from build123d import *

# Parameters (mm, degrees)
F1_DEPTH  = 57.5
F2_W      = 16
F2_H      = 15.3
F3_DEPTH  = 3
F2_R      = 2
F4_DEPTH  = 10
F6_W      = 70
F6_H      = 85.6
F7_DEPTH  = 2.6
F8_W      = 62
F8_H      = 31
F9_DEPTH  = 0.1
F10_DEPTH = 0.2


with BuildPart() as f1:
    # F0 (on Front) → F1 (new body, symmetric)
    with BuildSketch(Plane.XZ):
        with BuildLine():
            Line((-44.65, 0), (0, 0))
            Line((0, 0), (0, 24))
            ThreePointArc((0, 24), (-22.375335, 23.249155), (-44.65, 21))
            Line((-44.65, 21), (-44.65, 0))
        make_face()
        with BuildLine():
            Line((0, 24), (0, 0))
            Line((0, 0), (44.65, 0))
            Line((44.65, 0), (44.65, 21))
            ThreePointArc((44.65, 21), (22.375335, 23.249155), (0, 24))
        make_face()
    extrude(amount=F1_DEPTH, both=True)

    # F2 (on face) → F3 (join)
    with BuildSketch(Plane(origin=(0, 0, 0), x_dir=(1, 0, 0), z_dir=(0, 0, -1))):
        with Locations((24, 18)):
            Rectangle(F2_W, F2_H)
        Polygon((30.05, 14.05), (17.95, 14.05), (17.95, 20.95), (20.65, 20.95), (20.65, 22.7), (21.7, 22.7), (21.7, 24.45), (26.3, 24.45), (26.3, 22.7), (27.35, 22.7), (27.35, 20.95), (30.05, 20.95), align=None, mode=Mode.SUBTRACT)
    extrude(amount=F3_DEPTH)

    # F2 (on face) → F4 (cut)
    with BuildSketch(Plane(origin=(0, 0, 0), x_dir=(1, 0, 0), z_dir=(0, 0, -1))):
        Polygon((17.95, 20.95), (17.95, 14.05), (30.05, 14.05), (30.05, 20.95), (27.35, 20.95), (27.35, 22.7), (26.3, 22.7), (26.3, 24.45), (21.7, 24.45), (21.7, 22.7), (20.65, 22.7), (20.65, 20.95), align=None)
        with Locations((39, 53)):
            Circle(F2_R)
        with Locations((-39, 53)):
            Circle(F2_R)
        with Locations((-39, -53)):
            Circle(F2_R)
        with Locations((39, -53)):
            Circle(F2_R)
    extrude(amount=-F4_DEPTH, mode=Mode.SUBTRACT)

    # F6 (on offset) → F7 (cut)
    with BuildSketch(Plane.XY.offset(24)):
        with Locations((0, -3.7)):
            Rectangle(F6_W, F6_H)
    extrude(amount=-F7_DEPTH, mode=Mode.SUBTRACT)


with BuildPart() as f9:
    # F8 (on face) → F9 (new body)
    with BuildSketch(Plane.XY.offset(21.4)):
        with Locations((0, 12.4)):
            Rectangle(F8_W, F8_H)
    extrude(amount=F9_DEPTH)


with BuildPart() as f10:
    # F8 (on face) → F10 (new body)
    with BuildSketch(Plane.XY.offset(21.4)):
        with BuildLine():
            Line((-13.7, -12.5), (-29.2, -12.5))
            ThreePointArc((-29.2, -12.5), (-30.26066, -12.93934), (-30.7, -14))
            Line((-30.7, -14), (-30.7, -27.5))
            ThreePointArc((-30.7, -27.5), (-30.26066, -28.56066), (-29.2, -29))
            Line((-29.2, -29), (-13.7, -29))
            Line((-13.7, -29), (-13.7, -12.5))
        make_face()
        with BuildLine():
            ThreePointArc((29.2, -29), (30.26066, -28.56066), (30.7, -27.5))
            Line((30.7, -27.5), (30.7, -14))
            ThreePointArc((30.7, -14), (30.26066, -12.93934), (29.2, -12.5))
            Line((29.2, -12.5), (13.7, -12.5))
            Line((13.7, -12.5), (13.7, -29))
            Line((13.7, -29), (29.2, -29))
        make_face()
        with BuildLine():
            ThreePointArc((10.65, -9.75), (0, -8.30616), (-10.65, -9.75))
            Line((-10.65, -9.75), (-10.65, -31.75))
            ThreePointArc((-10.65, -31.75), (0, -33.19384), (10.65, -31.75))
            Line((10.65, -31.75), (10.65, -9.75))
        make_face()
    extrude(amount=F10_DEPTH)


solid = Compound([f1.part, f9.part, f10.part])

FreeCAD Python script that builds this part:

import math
import FreeCAD as App
import Part
import Sketcher


def add_polygon(sketch, points):
    """Adds a closed chain of lines whose ends are joined by coincident constraints."""
    first, n = sketch.GeometryCount, len(points)
    for a, b in zip(points, points[1:] + points[:1]):
        sketch.addGeometry(Part.LineSegment(App.Vector(*a, 0), App.Vector(*b, 0)), False)
    for i in range(n):
        sketch.addConstraint(Sketcher.Constraint("Coincident", first + i, 2, first + (i + 1) % n, 1))

doc = App.newDocument("Part")
body = doc.addObject("PartDesign::Body", "Body")

# Sketch on XZ plane
sketch1 = body.newObject("Sketcher::SketchObject", "Sketch")
sketch1.AttachmentSupport = (doc.getObject("XZ_Plane"), [""])
sketch1.MapMode = "FlatFace"
sketch1.addGeometry([
    Part.LineSegment(App.Vector(-44.65, 0, 0), App.Vector(44.65, 0, 0)),  # 0
    Part.LineSegment(App.Vector(44.65, 0, 0), App.Vector(44.65, 21, 0)),  # 1
    Part.ArcOfCircle(Part.Circle(App.Vector(-0.000014, -309.770624, 0), App.Vector(0, 0, 1), 333.770624), math.radians(82.312236), math.radians(89.999998)),  # 2
    Part.ArcOfCircle(Part.Circle(App.Vector(0.000014, -309.770624, 0), App.Vector(0, 0, 1), 333.770624), math.radians(90.000002), math.radians(97.687764)),  # 3
    Part.LineSegment(App.Vector(-44.65, 21, 0), App.Vector(-44.65, 0, 0)),  # 4
], False)
sketch1.addConstraint([
    Sketcher.Constraint("Coincident", 0, 2, 1, 1),
    Sketcher.Constraint("Coincident", 1, 2, 2, 1),
    Sketcher.Constraint("Coincident", 2, 2, 3, 1),
    Sketcher.Constraint("Coincident", 3, 2, 4, 1),
    Sketcher.Constraint("Coincident", 4, 2, 0, 1),
    Sketcher.Constraint("Horizontal", 0),
    Sketcher.Constraint("Vertical", 1),
    Sketcher.Constraint("Vertical", 4),
    Sketcher.Constraint("PointOnObject", 0, 2, -1),
    Sketcher.Constraint("PointOnObject", 2, 2, -2),
    Sketcher.Constraint("DistanceY", 1, 1, 1, 2, 21.0),
    Sketcher.Constraint("DistanceY", 4, 2, 4, 1, 21.0),
    Sketcher.Constraint("DistanceX", 0, 1, 0, 2, 89.3),
    Sketcher.Constraint("DistanceY", -1, 1, 2, 2, 24.0),
    Sketcher.Constraint("DistanceX", -1, 1, 0, 2, 44.65),
    Sketcher.Constraint("Radius", 2, 333.770624),
    Sketcher.Constraint("Radius", 3, 333.770624),
])
pad1 = body.newObject("PartDesign::Pad", "Pad")
pad1.Profile = sketch1
pad1.Length = 115
pad1.Midplane = True

# Sketch on XY plane
sketch2 = body.newObject("Sketcher::SketchObject", "Sketch001")
sketch2.AttachmentSupport = (doc.getObject("XY_Plane"), [""])
sketch2.MapMode = "FlatFace"
add_polygon(sketch2, [(16, -25.6), (16, -10.3), (32, -10.3), (32, -25.6)])  # lines 0-3
add_polygon(sketch2, [(30.1, -20.9), (30.1, -14.1), (17.9, -14.1), (17.9, -20.9), (20.6, -20.9), (20.6, -22.7), (21.7, -22.7), (21.7, -24.4), (26.3, -24.4), (26.3, -22.7), (27.4, -22.7), (27.4, -20.9)])  # lines 4-15
sketch2.addConstraint([
    Sketcher.Constraint("Vertical", 0),
    Sketcher.Constraint("Horizontal", 1),
    Sketcher.Constraint("Vertical", 2),
    Sketcher.Constraint("Horizontal", 3),
    Sketcher.Constraint("Vertical", 4),
    Sketcher.Constraint("Horizontal", 5),
    Sketcher.Constraint("Vertical", 6),
    Sketcher.Constraint("Horizontal", 7),
    Sketcher.Constraint("Vertical", 8),
    Sketcher.Constraint("Horizontal", 9),
    Sketcher.Constraint("Vertical", 10),
    Sketcher.Constraint("Horizontal", 11),
    Sketcher.Constraint("Vertical", 12),
    Sketcher.Constraint("Horizontal", 13),
    Sketcher.Constraint("Vertical", 14),
    Sketcher.Constraint("Horizontal", 15),
    Sketcher.Constraint("Horizontal", 9, 2, 12, 2),
    Sketcher.Constraint("Horizontal", 7, 2, 14, 2),
    Sketcher.Constraint("Equal", 9, 13),
    Sketcher.Constraint("Equal", 7, 15),
    Sketcher.Constraint("Equal", 8, 10),
    Sketcher.Constraint("DistanceX", 1, 1, 1, 2, 16.0),
    Sketcher.Constraint("DistanceX", 5, 2, 5, 1, 12.1),
    Sketcher.Constraint("DistanceX", 7, 1, 7, 2, 2.7),
    Sketcher.Constraint("DistanceX", 11, 1, 11, 2, 4.6),
    Sketcher.Constraint("DistanceY", 0, 1, 0, 2, 15.3),
    Sketcher.Constraint("DistanceY", 4, 1, 4, 2, 6.9),
    Sketcher.Constraint("DistanceX", -1, 1, 0, 2, 16.0),
    Sketcher.Constraint("DistanceY", 8, 2, 8, 1, 1.75),
    Sketcher.Constraint("DistanceY", 8, 2, -1, 1, 22.7),
    Sketcher.Constraint("DistanceX", -1, 1, 9, 2, 21.7),
    Sketcher.Constraint("DistanceY", 4, 2, 1, 2, 3.7),
])
pad2 = body.newObject("PartDesign::Pad", "Pad001")
pad2.Profile = sketch2
pad2.Length = 3
pad2.Reversed = True

# Sketch on XY plane
sketch3 = body.newObject("Sketcher::SketchObject", "Sketch002")
sketch3.AttachmentSupport = (doc.getObject("XY_Plane"), [""])
sketch3.MapMode = "FlatFace"
add_polygon(sketch3, [(17.9, -20.9), (17.9, -14.1), (30.1, -14.1), (30.1, -20.9), (27.4, -20.9), (27.4, -22.7), (26.3, -22.7), (26.3, -24.4), (21.7, -24.4), (21.7, -22.7), (20.6, -22.7), (20.6, -20.9)])  # lines 0-11
sketch3.addGeometry(Part.Circle(App.Vector(39, -53, 0), App.Vector(0, 0, 1), 2), False)  # 12
sketch3.addGeometry(Part.Circle(App.Vector(-39, -53, 0), App.Vector(0, 0, 1), 2), False)  # 13
sketch3.addGeometry(Part.Circle(App.Vector(-39, 53, 0), App.Vector(0, 0, 1), 2), False)  # 14
sketch3.addGeometry(Part.Circle(App.Vector(39, 53, 0), App.Vector(0, 0, 1), 2), False)  # 15
sketch3.addConstraint([
    Sketcher.Constraint("Vertical", 0),
    Sketcher.Constraint("Horizontal", 1),
    Sketcher.Constraint("Vertical", 2),
    Sketcher.Constraint("Horizontal", 3),
    Sketcher.Constraint("Vertical", 4),
    Sketcher.Constraint("Horizontal", 5),
    Sketcher.Constraint("Vertical", 6),
    Sketcher.Constraint("Horizontal", 7),
    Sketcher.Constraint("Vertical", 8),
    Sketcher.Constraint("Horizontal", 9),
    Sketcher.Constraint("Vertical", 10),
    Sketcher.Constraint("Horizontal", 11),
    Sketcher.Constraint("Equal", 12, 13),
    Sketcher.Constraint("Equal", 13, 14),
    Sketcher.Constraint("Equal", 14, 15),
    Sketcher.Constraint("Symmetric", 12, 3, 14, 3, -1, 1),
    Sketcher.Constraint("Symmetric", 13, 3, 15, 3, -1, 1),
    Sketcher.Constraint("Symmetric", 12, 3, 13, 3, -2),
    Sketcher.Constraint("Horizontal", 5, 2, 8, 2),
    Sketcher.Constraint("Horizontal", 3, 2, 10, 2),
    Sketcher.Constraint("Equal", 5, 9),
    Sketcher.Constraint("Equal", 3, 11),
    Sketcher.Constraint("Equal", 4, 6),
    Sketcher.Constraint("Diameter", 12, 4.0),
    Sketcher.Constraint("DistanceX", 1, 1, 1, 2, 12.1),
    Sketcher.Constraint("DistanceX", 3, 2, 3, 1, 2.7),
    Sketcher.Constraint("DistanceX", 7, 2, 7, 1, 4.6),
    Sketcher.Constraint("DistanceY", 0, 1, 0, 2, 6.9),
    Sketcher.Constraint("DistanceX", -1, 1, 12, 3, 39.0),
    Sketcher.Constraint("DistanceY", 12, 3, -1, 1, 53.0),
    Sketcher.Constraint("DistanceY", 4, 2, 4, 1, 1.75),
    Sketcher.Constraint("DistanceY", 4, 2, -1, 1, 22.7),
    Sketcher.Constraint("DistanceX", -1, 1, 5, 2, 26.3),
])
pocket1 = body.newObject("PartDesign::Pocket", "Pocket")
pocket1.Profile = sketch3
pocket1.Length = 10
pocket1.Reversed = True

# Sketch on XY plane
sketch4 = body.newObject("Sketcher::SketchObject", "Sketch003")
sketch4.AttachmentSupport = (doc.getObject("XY_Plane"), [""])
sketch4.MapMode = "FlatFace"
sketch4.AttachmentOffset = App.Placement(App.Vector(0, 0, 24), App.Rotation())
add_polygon(sketch4, [(-35, 39), (-35, -46), (35, -46), (35, 39)])  # lines 0-3
sketch4.addConstraint([
    Sketcher.Constraint("Vertical", 0),
    Sketcher.Constraint("Horizontal", 1),
    Sketcher.Constraint("Vertical", 2),
    Sketcher.Constraint("Horizontal", 3),
    Sketcher.Constraint("DistanceX", 1, 1, 1, 2, 70.0),
    Sketcher.Constraint("DistanceY", 0, 2, 0, 1, 85.6),
    Sketcher.Constraint("DistanceX", 0, 2, -1, 1, 35.0),
    Sketcher.Constraint("DistanceY", 0, 2, -1, 1, 46.5),
])
pocket2 = body.newObject("PartDesign::Pocket", "Pocket001")
pocket2.Profile = sketch4
pocket2.Length = 2.6
body2 = doc.addObject("PartDesign::Body", "Body001")

# Sketch on XY plane
sketch5 = body2.newObject("Sketcher::SketchObject", "Sketch004")
sketch5.AttachmentSupport = (doc.getObject("XY_Plane001"), [""])
sketch5.MapMode = "FlatFace"
sketch5.AttachmentOffset = App.Placement(App.Vector(0, 0, 21.4), App.Rotation())
add_polygon(sketch5, [(-31, 28), (-31, -3), (31, -3), (31, 28)])  # lines 0-3
sketch5.addConstraint([
    Sketcher.Constraint("Vertical", 0),
    Sketcher.Constraint("Horizontal", 1),
    Sketcher.Constraint("Vertical", 2),
    Sketcher.Constraint("Horizontal", 3),
    Sketcher.Constraint("DistanceX", 1, 1, 1, 2, 62.0),
    Sketcher.Constraint("DistanceY", 0, 2, 0, 1, 31.0),
    Sketcher.Constraint("DistanceX", 0, 2, -1, 1, 31.0),
    Sketcher.Constraint("DistanceY", 0, 2, -1, 1, 3.1),
])
pad3 = body2.newObject("PartDesign::Pad", "Pad002")
pad3.Profile = sketch5
pad3.Length = 0.1
body3 = doc.addObject("PartDesign::Body", "Body002")
body3.AllowCompound = True

# Sketch on XY plane
sketch6 = body3.newObject("Sketcher::SketchObject", "Sketch005")
sketch6.AttachmentSupport = (doc.getObject("XY_Plane002"), [""])
sketch6.MapMode = "FlatFace"
sketch6.AttachmentOffset = App.Placement(App.Vector(0, 0, 21.4), App.Rotation())
sketch6.addGeometry([
    Part.LineSegment(App.Vector(-13.7, -12.5, 0), App.Vector(-29.2, -12.5, 0)),  # 0
    Part.ArcOfCircle(Part.Circle(App.Vector(-29.2, -14, 0), App.Vector(0, 0, 1), 1.5), math.radians(90), math.radians(180)),  # 1
    Part.LineSegment(App.Vector(-30.7, -14, 0), App.Vector(-30.7, -27.5, 0)),  # 2
    Part.ArcOfCircle(Part.Circle(App.Vector(-29.2, -27.5, 0), App.Vector(0, 0, 1), 1.5), math.radians(-180), math.radians(-90)),  # 3
    Part.LineSegment(App.Vector(-29.2, -29, 0), App.Vector(-13.7, -29, 0)),  # 4
    Part.LineSegment(App.Vector(-13.7, -29, 0), App.Vector(-13.7, -12.5, 0)),  # 5
    Part.ArcOfCircle(Part.Circle(App.Vector(29.2, -27.5, 0), App.Vector(0, 0, 1), 1.5), math.radians(-90), math.radians(0)),  # 6
    Part.LineSegment(App.Vector(30.7, -27.5, 0), App.Vector(30.7, -14, 0)),  # 7
    Part.ArcOfCircle(Part.Circle(App.Vector(29.2, -14, 0), App.Vector(0, 0, 1), 1.5), math.radians(0), math.radians(90)),  # 8
    Part.LineSegment(App.Vector(29.2, -12.5, 0), App.Vector(13.7, -12.5, 0)),  # 9
    Part.LineSegment(App.Vector(13.7, -12.5, 0), App.Vector(13.7, -29, 0)),  # 10
    Part.LineSegment(App.Vector(13.7, -29, 0), App.Vector(29.2, -29, 0)),  # 11
    Part.ArcOfCircle(Part.Circle(App.Vector(0, -48.3, 0), App.Vector(0, 0, 1), 40), math.radians(75), math.radians(105)),  # 12
    Part.LineSegment(App.Vector(-10.7, -9.8, 0), App.Vector(-10.7, -31.8, 0)),  # 13
    Part.ArcOfCircle(Part.Circle(App.Vector(0, 6.8, 0), App.Vector(0, 0, 1), 40), math.radians(-105), math.radians(-75)),  # 14
    Part.LineSegment(App.Vector(10.7, -31.8, 0), App.Vector(10.7, -9.8, 0)),  # 15
], False)
sketch6.addConstraint([
    Sketcher.Constraint("Tangent", 0, 2, 1, 1),
    Sketcher.Constraint("Tangent", 1, 2, 2, 1),
    Sketcher.Constraint("Tangent", 2, 2, 3, 1),
    Sketcher.Constraint("Tangent", 3, 2, 4, 1),
    Sketcher.Constraint("Coincident", 4, 2, 5, 1),
    Sketcher.Constraint("Coincident", 5, 2, 0, 1),
    Sketcher.Constraint("Tangent", 6, 2, 7, 1),
    Sketcher.Constraint("Tangent", 7, 2, 8, 1),
    Sketcher.Constraint("Tangent", 8, 2, 9, 1),
    Sketcher.Constraint("Coincident", 9, 2, 10, 1),
    Sketcher.Constraint("Coincident", 10, 2, 11, 1),
    Sketcher.Constraint("Tangent", 11, 2, 6, 1),
    Sketcher.Constraint("Coincident", 12, 2, 13, 1),
    Sketcher.Constraint("Coincident", 13, 2, 14, 1),
    Sketcher.Constraint("Coincident", 14, 2, 15, 1),
    Sketcher.Constraint("Coincident", 15, 2, 12, 1),
    Sketcher.Constraint("Horizontal", 0),
    Sketcher.Constraint("Vertical", 2),
    Sketcher.Constraint("Horizontal", 4),
    Sketcher.Constraint("Vertical", 5),
    Sketcher.Constraint("Vertical", 7),
    Sketcher.Constraint("Horizontal", 9),
    Sketcher.Constraint("Vertical", 10),
    Sketcher.Constraint("Horizontal", 11),
    Sketcher.Constraint("Vertical", 13),
    Sketcher.Constraint("Vertical", 15),
    Sketcher.Constraint("Equal", 1, 3),
    Sketcher.Constraint("Equal", 3, 6),
    Sketcher.Constraint("Equal", 6, 8),
    Sketcher.Constraint("Equal", 12, 14),
    Sketcher.Constraint("Symmetric", 3, 3, 6, 3, -2),
    Sketcher.Constraint("Symmetric", 5, 2, 9, 2, -2),
    Sketcher.Constraint("Symmetric", 13, 2, 14, 2, -2),
    Sketcher.Constraint("PointOnObject", 12, 3, -2),
    Sketcher.Constraint("Radius", 1, 1.500001),
    Sketcher.Constraint("DistanceY", 13, 2, 13, 1, 22.0),
    Sketcher.Constraint("DistanceX", 0, 2, 0, 1, 15.5),
    Sketcher.Constraint("DistanceY", 2, 2, 2, 1, 13.5),
    Sketcher.Constraint("DistanceY", 1, 3, -1, 1, 14.000001),
    Sketcher.Constraint("DistanceX", 1, 3, -1, 1, 29.199999),
    Sketcher.Constraint("DistanceX", 12, 2, -1, 1, 10.65),
    Sketcher.Constraint("DistanceY", 12, 2, -1, 1, 9.75),
    Sketcher.Constraint("Radius", 12, 39.999991),
])
pad4 = body3.newObject("PartDesign::Pad", "Pad003")
pad4.Profile = sketch6
pad4.Length = 0.2

doc.recompute()
